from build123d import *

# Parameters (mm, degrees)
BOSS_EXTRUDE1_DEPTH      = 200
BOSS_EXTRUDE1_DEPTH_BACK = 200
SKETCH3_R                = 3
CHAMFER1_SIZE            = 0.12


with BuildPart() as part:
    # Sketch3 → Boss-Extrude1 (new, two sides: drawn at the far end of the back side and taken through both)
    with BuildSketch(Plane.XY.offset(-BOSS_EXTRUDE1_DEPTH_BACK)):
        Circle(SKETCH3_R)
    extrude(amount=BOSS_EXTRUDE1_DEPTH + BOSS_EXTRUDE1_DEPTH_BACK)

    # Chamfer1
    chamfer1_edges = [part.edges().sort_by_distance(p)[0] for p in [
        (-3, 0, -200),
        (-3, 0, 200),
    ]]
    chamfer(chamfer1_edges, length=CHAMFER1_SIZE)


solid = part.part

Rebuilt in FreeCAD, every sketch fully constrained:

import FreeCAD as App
import Part
import Sketcher
from FreeCAD import Vector


def edges_at(feature, points):
    """Names of the edges that pass closest to the given points."""
    edges = feature.Shape.Edges
    near = lambda p: min(range(len(edges)), key=lambda i: edges[i].distToShape(Part.Vertex(*p))[0])
    return sorted({f"Edge{near(p) + 1}" for p in points})

doc = App.newDocument("Part")
body = doc.addObject("PartDesign::Body", "Body")

# Sketch on XY plane
sketch1 = doc.addObject("Sketcher::SketchObject", "Sketch")
body.addObject(sketch1)
sketch1.AttachmentSupport = (doc.XY_Plane, [""])
sketch1.MapMode = "FlatFace"
sketch1.addGeometry(Part.Circle(Vector(0, 0, 0), Vector(0, 0, 1), 3), False)
sketch1.addConstraint([
    Sketcher.Constraint("Coincident", 0, 3, -1, 1),
    Sketcher.Constraint("Diameter", 0, 6.0),
])
pad1 = doc.addObject("PartDesign::Pad", "Pad")
body.addObject(pad1)
pad1.Profile = sketch1
pad1.Type = "TwoLengths"
pad1.Length = 200
pad1.Length2 = 200
doc.recompute()

chamfer = doc.addObject("PartDesign::Chamfer", "Chamfer")
body.addObject(chamfer)
chamfer.Base = (pad1, edges_at(pad1, [(-3, 0, -200), (-3, 0, 200)]))
chamfer.Size = 0.12

doc.recompute()
